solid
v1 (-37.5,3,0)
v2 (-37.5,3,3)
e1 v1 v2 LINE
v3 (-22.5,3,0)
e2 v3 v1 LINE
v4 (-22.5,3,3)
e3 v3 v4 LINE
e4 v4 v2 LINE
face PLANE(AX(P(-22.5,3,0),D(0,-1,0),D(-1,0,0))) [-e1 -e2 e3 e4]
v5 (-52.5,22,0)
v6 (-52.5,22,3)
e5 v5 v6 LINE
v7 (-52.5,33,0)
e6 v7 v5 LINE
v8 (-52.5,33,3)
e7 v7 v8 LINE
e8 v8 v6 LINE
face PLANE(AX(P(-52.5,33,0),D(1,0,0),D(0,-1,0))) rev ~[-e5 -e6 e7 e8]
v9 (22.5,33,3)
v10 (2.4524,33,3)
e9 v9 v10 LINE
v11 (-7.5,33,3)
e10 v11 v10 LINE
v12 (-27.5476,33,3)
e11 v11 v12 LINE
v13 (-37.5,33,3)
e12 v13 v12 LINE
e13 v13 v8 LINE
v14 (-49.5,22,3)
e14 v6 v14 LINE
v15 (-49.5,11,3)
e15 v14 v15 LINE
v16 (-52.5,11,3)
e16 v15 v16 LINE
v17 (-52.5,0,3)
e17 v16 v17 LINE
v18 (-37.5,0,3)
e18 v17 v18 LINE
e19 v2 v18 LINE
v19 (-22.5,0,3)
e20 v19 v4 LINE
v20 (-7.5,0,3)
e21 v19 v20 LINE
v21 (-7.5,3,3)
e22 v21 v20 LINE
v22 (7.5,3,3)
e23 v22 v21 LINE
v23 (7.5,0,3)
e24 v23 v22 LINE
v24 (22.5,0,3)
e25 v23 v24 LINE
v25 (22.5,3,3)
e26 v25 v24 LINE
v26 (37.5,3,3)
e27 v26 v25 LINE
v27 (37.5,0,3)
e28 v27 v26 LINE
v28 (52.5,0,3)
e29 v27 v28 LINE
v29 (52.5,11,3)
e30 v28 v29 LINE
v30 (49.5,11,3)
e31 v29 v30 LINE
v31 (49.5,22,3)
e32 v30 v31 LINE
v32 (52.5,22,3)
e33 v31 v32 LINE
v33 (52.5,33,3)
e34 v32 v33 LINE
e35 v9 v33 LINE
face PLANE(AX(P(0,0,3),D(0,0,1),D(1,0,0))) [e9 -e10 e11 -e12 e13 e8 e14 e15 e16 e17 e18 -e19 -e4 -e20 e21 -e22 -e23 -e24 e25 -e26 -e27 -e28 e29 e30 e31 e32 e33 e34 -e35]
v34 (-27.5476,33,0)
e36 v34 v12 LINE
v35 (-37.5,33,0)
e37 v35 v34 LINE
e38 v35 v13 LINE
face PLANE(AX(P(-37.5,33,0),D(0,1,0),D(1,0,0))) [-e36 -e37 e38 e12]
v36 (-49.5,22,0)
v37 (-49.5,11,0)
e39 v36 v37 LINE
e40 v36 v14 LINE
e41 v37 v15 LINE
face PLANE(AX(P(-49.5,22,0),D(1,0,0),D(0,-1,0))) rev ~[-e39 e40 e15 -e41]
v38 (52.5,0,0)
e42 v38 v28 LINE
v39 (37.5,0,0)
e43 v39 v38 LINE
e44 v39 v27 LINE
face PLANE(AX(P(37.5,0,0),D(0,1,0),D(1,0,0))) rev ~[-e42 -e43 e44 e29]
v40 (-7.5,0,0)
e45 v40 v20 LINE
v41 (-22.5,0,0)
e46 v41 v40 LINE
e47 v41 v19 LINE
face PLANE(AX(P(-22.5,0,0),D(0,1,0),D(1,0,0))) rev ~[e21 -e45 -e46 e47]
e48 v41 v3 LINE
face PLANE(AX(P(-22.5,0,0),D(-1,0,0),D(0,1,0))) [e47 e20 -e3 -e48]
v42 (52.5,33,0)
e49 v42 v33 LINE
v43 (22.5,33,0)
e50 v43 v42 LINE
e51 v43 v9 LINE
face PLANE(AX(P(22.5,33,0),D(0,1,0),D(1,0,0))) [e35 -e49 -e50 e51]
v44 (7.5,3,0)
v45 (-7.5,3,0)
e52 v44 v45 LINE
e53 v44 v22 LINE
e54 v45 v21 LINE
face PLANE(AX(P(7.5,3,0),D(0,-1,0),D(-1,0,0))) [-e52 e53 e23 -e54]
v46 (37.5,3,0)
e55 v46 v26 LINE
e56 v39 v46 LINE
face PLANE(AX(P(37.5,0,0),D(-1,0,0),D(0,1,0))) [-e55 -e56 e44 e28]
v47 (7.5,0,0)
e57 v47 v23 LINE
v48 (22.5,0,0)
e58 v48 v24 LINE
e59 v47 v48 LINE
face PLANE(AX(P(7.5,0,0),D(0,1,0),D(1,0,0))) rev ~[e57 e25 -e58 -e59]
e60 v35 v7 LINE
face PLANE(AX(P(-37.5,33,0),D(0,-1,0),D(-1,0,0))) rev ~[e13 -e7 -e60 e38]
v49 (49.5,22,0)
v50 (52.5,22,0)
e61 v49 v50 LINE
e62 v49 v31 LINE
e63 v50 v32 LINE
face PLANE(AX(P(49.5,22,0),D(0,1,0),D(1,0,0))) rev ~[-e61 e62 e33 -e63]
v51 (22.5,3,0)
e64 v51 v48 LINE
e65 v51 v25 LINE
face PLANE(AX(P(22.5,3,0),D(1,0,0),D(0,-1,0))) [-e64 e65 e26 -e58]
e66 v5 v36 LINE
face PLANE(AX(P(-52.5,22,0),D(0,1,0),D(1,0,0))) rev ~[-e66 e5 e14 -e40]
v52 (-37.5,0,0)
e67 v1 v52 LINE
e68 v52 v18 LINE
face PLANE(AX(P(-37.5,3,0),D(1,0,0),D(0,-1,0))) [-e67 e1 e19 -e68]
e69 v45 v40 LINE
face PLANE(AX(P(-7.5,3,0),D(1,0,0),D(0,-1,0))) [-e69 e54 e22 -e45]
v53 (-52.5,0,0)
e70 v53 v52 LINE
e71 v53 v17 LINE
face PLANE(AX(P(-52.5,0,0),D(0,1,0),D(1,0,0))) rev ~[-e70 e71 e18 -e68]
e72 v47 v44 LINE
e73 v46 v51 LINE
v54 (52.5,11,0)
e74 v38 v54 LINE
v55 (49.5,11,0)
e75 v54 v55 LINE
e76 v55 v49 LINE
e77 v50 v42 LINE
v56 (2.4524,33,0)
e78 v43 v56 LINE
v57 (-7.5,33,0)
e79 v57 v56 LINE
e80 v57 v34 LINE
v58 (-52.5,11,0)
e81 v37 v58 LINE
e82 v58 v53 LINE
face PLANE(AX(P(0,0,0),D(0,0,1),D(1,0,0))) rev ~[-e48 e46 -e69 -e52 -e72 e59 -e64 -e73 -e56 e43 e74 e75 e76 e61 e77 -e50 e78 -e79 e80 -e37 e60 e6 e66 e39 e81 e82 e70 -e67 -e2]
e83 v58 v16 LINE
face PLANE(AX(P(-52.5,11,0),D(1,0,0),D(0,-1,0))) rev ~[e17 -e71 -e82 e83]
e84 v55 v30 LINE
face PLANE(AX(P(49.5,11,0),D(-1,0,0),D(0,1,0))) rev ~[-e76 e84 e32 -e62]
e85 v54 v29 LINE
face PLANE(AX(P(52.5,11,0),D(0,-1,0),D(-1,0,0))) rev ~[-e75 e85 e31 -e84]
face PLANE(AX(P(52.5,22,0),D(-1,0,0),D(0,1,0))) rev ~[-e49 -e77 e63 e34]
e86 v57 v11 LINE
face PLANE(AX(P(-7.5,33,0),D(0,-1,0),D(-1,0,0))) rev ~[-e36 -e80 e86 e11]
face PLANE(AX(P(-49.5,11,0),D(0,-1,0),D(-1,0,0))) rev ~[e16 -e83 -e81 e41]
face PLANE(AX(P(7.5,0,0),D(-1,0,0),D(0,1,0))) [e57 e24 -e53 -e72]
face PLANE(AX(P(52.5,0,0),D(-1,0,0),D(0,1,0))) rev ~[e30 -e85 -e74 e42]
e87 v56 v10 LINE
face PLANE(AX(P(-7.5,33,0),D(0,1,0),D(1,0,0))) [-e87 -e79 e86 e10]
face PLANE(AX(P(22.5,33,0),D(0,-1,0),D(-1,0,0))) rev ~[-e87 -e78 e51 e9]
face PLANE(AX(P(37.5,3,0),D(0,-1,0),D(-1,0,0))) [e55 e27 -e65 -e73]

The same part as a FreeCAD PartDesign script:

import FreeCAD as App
import Part
import Sketcher
Q = App.Units.Quantity

doc = App.newDocument("Part")
body = doc.addObject("PartDesign::Body", "Body")

# Sketch on XY plane
sketch1 = body.newObject("Sketcher::SketchObject", "Sketch")
sketch1.AttachmentSupport = (doc.getObject("XY_Plane"), [""])
sketch1.MapMode = "FlatFace"
sketch1.addGeometry([
    Part.LineSegment(App.Vector(-22.5, 3, 0), App.Vector(-22.5, 0, 0)),  # 0
    Part.LineSegment(App.Vector(-22.5, 0, 0), App.Vector(-7.5, 0, 0)),  # 1
    Part.LineSegment(App.Vector(-7.5, 0, 0), App.Vector(-7.5, 3, 0)),  # 2
    Part.LineSegment(App.Vector(-7.5, 3, 0), App.Vector(7.5, 3, 0)),  # 3
    Part.LineSegment(App.Vector(7.5, 3, 0), App.Vector(7.5, 0, 0)),  # 4
    Part.LineSegment(App.Vector(7.5, 0, 0), App.Vector(22.5, 0, 0)),  # 5
    Part.LineSegment(App.Vector(22.5, 0, 0), App.Vector(22.5, 3, 0)),  # 6
    Part.LineSegment(App.Vector(22.5, 3, 0), App.Vector(37.5, 3, 0)),  # 7
    Part.LineSegment(App.Vector(37.5, 3, 0), App.Vector(37.5, 0, 0)),  # 8
    Part.LineSegment(App.Vector(37.5, 0, 0), App.Vector(52.5, 0, 0)),  # 9
    Part.LineSegment(App.Vector(52.5, 0, 0), App.Vector(52.5, 11, 0)),  # 10
    Part.LineSegment(App.Vector(52.5, 11, 0), App.Vector(49.5, 11, 0)),  # 11
    Part.LineSegment(App.Vector(49.5, 11, 0), App.Vector(49.5, 22, 0)),  # 12
    Part.LineSegment(App.Vector(49.5, 22, 0), App.Vector(52.5, 22, 0)),  # 13
    Part.LineSegment(App.Vector(52.5, 22, 0), App.Vector(52.5, 33, 0)),  # 14
    Part.LineSegment(App.Vector(52.5, 33, 0), App.Vector(-52.5, 33, 0)),  # 15
    Part.LineSegment(App.Vector(-52.5, 33, 0), App.Vector(-52.5, 22, 0)),  # 16
    Part.LineSegment(App.Vector(-52.5, 22, 0), App.Vector(-49.5, 22, 0)),  # 17
    Part.LineSegment(App.Vector(-49.5, 22, 0), App.Vector(-49.5, 11, 0)),  # 18
    Part.LineSegment(App.Vector(-49.5, 11, 0), App.Vector(-52.5, 11, 0)),  # 19
    Part.LineSegment(App.Vector(-52.5, 11, 0), App.Vector(-52.5, 0, 0)),  # 20
    Part.LineSegment(App.Vector(-52.5, 0, 0), App.Vector(-37.5, 0, 0)),  # 21
    Part.LineSegment(App.Vector(-37.5, 0, 0), App.Vector(-37.5, 3, 0)),  # 22
    Part.LineSegment(App.Vector(-37.5, 3, 0), App.Vector(-22.5, 3, 0)),  # 23
], False)
sketch1.addConstraint([
    Sketcher.Constraint("Coincident", 0, 2, 1, 1),
    Sketcher.Constraint("Coincident", 1, 2, 2, 1),
    Sketcher.Constraint("Coincident", 2, 2, 3, 1),
    Sketcher.Constraint("Coincident", 3, 2, 4, 1),
    Sketcher.Constraint("Coincident", 4, 2, 5, 1),
    Sketcher.Constraint("Coincident", 5, 2, 6, 1),
    Sketcher.Constraint("Coincident", 6, 2, 7, 1),
    Sketcher.Constraint("Coincident", 7, 2, 8, 1),
    Sketcher.Constraint("Coincident", 8, 2, 9, 1),
    Sketcher.Constraint("Coincident", 9, 2, 10, 1),
    Sketcher.Constraint("Coincident", 10, 2, 11, 1),
    Sketcher.Constraint("Coincident", 11, 2, 12, 1),
    Sketcher.Constraint("Coincident", 12, 2, 13, 1),
    Sketcher.Constraint("Coincident", 13, 2, 14, 1),
    Sketcher.Constraint("Coincident", 14, 2, 15, 1),
    Sketcher.Constraint("Coincident", 15, 2, 16, 1),
    Sketcher.Constraint("Coincident", 16, 2, 17, 1),
    Sketcher.Constraint("Coincident", 17, 2, 18, 1),
    Sketcher.Constraint("Coincident", 18, 2, 19, 1),
    Sketcher.Constraint("Coincident", 19, 2, 20, 1),
    Sketcher.Constraint("Coincident", 20, 2, 21, 1),
    Sketcher.Constraint("Coincident", 21, 2, 22, 1),
    Sketcher.Constraint("Coincident", 22, 2, 23, 1),
    Sketcher.Constraint("Coincident", 23, 2, 0, 1),
    Sketcher.Constraint("Vertical", 0),
    Sketcher.Constraint("Horizontal", 1),
    Sketcher.Constraint("Vertical", 2),
    Sketcher.Constraint("Horizontal", 3),
    Sketcher.Constraint("Vertical", 4),
    Sketcher.Constraint("Horizontal", 5),
    Sketcher.Constraint("Vertical", 6),
    Sketcher.Constraint("Horizontal", 7),
    Sketcher.Constraint("Vertical", 8),
    Sketcher.Constraint("Horizontal", 9),
    Sketcher.Constraint("Vertical", 10),
    Sketcher.Constraint("Horizontal", 11),
    Sketcher.Constraint("Vertical", 12),
    Sketcher.Constraint("Horizontal", 13),
    Sketcher.Constraint("Vertical", 14),
    Sketcher.Constraint("Horizontal", 15),
    Sketcher.Constraint("Vertical", 16),
    Sketcher.Constraint("Horizontal", 17),
    Sketcher.Constraint("Vertical", 18),
    Sketcher.Constraint("Horizontal", 19),
    Sketcher.Constraint("Vertical", 20),
    Sketcher.Constraint("Horizontal", 21),
    Sketcher.Constraint("Vertical", 22),
    Sketcher.Constraint("Horizontal", 23),
    Sketcher.Constraint("Symmetric", 1, 2, 4, 2, -1, 1),
    Sketcher.Constraint("Symmetric", 9, 2, 20, 2, -1, 1),
    Sketcher.Constraint("Symmetric", 0, 2, 5, 2, -2),
    Sketcher.Constraint("Symmetric", 13, 2, 16, 2, -2),
    Sketcher.Constraint("Symmetric", 11, 2, 18, 2, -2),
    Sketcher.Constraint("Symmetric", 8, 2, 21, 2, -2),
    Sketcher.Constraint("Horizontal", 3, 2, 6, 2),
    Sketcher.Constraint("Horizontal", 7, 2, 22, 2),
    Sketcher.Constraint("Vertical", 10, 2, 13, 2),
    Sketcher.Constraint("Equal", 1, 3),
    Sketcher.Constraint("Equal", 5, 7),
    Sketcher.Constraint("Equal", 7, 9),
    Sketcher.Constraint("Equal", 19, 0),
    Sketcher.Constraint("Equal", 10, 12),
    Sketcher.Constraint("Equal", 12, 14),
    Sketcher.Constraint("DistanceX", 1, 1, 1, 2, Q("15 mm")),
    Sketcher.Constraint("DistanceX", 11, 2, 11, 1, Q("3 mm")),
    Sketcher.Constraint("DistanceY", 10, 1, 10, 2, Q("11 mm")),
])
pad1 = body.newObject("PartDesign::Pad", "Pad")
pad1.Profile = sketch1
pad1.Length = 3

doc.recompute()
